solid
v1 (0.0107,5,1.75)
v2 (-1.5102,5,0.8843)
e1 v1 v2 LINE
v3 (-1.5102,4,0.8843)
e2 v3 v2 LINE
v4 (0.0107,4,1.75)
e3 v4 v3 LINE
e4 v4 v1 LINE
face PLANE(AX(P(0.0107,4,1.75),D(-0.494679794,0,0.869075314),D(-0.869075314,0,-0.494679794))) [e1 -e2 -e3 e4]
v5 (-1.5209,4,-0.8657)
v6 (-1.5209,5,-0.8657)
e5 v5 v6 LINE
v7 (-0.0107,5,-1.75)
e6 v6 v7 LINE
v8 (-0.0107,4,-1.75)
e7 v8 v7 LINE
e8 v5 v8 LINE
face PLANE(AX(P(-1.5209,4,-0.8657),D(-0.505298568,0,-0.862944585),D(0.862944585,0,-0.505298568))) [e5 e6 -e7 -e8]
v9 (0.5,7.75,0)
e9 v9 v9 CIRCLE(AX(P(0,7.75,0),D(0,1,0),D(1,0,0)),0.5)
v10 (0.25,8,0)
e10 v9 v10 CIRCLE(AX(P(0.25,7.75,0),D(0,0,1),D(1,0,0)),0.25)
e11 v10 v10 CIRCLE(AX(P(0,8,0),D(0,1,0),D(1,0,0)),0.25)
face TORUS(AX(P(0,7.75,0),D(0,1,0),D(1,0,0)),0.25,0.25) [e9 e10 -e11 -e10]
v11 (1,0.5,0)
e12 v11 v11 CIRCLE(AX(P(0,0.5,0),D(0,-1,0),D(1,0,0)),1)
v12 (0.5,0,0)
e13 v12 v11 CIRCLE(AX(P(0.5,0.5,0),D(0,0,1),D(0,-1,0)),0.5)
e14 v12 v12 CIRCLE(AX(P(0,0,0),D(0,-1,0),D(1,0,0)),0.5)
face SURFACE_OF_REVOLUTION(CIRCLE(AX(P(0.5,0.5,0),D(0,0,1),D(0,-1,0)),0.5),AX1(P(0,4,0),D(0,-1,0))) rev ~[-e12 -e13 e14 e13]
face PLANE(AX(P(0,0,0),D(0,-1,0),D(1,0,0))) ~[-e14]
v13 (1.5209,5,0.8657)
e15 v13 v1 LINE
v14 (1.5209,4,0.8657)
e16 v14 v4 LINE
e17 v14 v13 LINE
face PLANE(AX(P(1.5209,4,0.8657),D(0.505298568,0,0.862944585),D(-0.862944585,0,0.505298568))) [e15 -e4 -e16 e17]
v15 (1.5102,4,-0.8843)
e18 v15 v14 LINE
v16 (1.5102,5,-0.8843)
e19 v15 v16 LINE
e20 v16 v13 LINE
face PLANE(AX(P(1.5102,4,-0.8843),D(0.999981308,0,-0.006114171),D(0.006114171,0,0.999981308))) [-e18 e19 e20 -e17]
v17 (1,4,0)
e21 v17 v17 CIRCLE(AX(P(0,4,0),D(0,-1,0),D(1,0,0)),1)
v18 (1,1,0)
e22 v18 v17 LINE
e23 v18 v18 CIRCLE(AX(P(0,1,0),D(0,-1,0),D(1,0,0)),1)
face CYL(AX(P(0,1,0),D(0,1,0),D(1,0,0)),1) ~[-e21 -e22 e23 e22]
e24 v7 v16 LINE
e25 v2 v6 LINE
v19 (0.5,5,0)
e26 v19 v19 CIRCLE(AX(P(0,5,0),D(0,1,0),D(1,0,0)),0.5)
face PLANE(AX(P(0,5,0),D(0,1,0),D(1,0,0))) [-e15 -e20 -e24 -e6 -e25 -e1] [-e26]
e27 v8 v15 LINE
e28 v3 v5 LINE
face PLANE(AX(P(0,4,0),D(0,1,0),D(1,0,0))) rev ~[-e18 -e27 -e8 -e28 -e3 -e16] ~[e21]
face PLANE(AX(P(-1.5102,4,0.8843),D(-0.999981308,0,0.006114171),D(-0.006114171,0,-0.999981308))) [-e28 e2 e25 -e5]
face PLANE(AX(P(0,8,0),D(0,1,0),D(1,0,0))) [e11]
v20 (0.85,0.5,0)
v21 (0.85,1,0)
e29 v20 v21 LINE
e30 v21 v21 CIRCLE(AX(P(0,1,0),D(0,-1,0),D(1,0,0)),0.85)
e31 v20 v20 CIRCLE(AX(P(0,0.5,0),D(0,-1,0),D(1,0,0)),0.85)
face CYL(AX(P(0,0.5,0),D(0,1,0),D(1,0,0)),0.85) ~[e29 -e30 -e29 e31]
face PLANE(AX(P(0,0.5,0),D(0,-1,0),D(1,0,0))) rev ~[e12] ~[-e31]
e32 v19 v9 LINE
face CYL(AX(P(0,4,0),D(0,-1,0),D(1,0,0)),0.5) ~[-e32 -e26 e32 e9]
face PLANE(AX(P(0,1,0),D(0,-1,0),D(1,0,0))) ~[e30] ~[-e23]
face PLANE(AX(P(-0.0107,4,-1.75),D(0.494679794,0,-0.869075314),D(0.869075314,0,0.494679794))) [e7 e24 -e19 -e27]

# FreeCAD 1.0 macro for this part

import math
import FreeCAD as App
import Part
import Sketcher
Q = App.Units.Quantity


def edges_at(feature, points):
    """Names of the edges that pass closest to the given points."""
    edges = feature.Shape.Edges
    near = lambda p: min(range(len(edges)), key=lambda i: edges[i].distToShape(Part.Vertex(*p))[0])
    return sorted({f"Edge{near(p) + 1}" for p in points})


def add_polygon(sketch, points):
    """Adds a closed chain of lines whose ends are joined by coincident constraints."""
    first, n = sketch.GeometryCount, len(points)
    for a, b in zip(points, points[1:] + points[:1]):
        sketch.addGeometry(Part.LineSegment(App.Vector(*a, 0), App.Vector(*b, 0)), False)
    for i in range(n):
        sketch.addConstraint(Sketcher.Constraint("Coincident", first + i, 2, first + (i + 1) % n, 1))

doc = App.newDocument("Part")
body = doc.addObject("PartDesign::Body", "Body")

sketch1 = body.newObject("Sketcher::SketchObject", "Sketch")
sketch1.AttachmentSupport = (doc.getObject("XY_Plane"), [""])
sketch1.MapMode = "FlatFace"
sketch1.addGeometry(Part.LineSegment(App.Vector(0, 4, 0), App.Vector(0, 0, 0)), False)
sketch1.addGeometry(Part.LineSegment(App.Vector(0, 0, 0), App.Vector(0.5, 0, 0)), False)
sketch1.addGeometry(Part.ArcOfCircle(Part.Circle(App.Vector(0.5, 0.5, 0), App.Vector(0, 0, 1), 0.5), math.radians(-90), math.radians(0)), False)
sketch1.addGeometry(Part.LineSegment(App.Vector(1, 0.5, 0), App.Vector(0.85, 0.5, 0)), False)
sketch1.addGeometry(Part.LineSegment(App.Vector(0.85, 0.5, 0), App.Vector(0.85, 1, 0)), False)
sketch1.addGeometry(Part.LineSegment(App.Vector(0.85, 1, 0), App.Vector(1, 1, 0)), False)
sketch1.addGeometry(Part.LineSegment(App.Vector(1, 1, 0), App.Vector(1, 4, 0)), False)
sketch1.addGeometry(Part.LineSegment(App.Vector(1, 4, 0), App.Vector(0, 4, 0)), False)
sketch1.addConstraint(Sketcher.Constraint("Coincident", 0, 2, 1, 1))
sketch1.addConstraint(Sketcher.Constraint("Tangent", 1, 2, 2, 1))
sketch1.addConstraint(Sketcher.Constraint("Coincident", 2, 2, 3, 1))
sketch1.addConstraint(Sketcher.Constraint("Coincident", 3, 2, 4, 1))
sketch1.addConstraint(Sketcher.Constraint("Coincident", 4, 2, 5, 1))
sketch1.addConstraint(Sketcher.Constraint("Coincident", 5, 2, 6, 1))
sketch1.addConstraint(Sketcher.Constraint("Coincident", 6, 2, 7, 1))
sketch1.addConstraint(Sketcher.Constraint("Coincident", 7, 2, 0, 1))
sketch1.addConstraint(Sketcher.Constraint("Vertical", 0))
sketch1.addConstraint(Sketcher.Constraint("Horizontal", 1))
sketch1.addConstraint(Sketcher.Constraint("Horizontal", 3))
sketch1.addConstraint(Sketcher.Constraint("Vertical", 4))
sketch1.addConstraint(Sketcher.Constraint("Horizontal", 5))
sketch1.addConstraint(Sketcher.Constraint("Vertical", 6))
sketch1.addConstraint(Sketcher.Constraint("Horizontal", 7))
sketch1.addConstraint(Sketcher.Constraint("Coincident", 0, 2, -1, 1))
sketch1.addConstraint(Sketcher.Constraint("Vertical", 2, 2, 5, 2))
sketch1.addConstraint(Sketcher.Constraint("Equal", 1, 4))
sketch1.addConstraint(Sketcher.Constraint("Radius", 2, Q("0.5 mm")))
sketch1.addConstraint(Sketcher.Constraint("DistanceX", 7, 2, 7, 1, Q("1 mm")))
sketch1.addConstraint(Sketcher.Constraint("DistanceY", 0, 2, 0, 1, Q("4 mm")))
sketch1.addConstraint(Sketcher.Constraint("DistanceY", -1, 1, 4, 2, Q("1 mm")))
sketch1.addConstraint(Sketcher.Constraint("DistanceX", 3, 2, 3, 1, Q("0.15 mm")))
revolution = body.newObject("PartDesign::Revolution", "Revolution")
revolution.Profile = sketch1
revolution.ReferenceAxis = (sketch1, ["V_Axis"])
revolution.Angle = 360

sketch2 = body.newObject("Sketcher::SketchObject", "Sketch001")
sketch2.AttachmentSupport = (doc.getObject("XZ_Plane"), [""])
sketch2.MapMode = "FlatFace"
sketch2.AttachmentOffset = App.Placement(App.Vector(0, 0, -4), App.Rotation())
add_polygon(sketch2, [(-1.5, -0.9), (-1.5, 0.9), (0, 1.8), (1.5, 0.9), (1.5, -0.9), (0, -1.8)])
sketch2.addGeometry(Part.Circle(App.Vector(0, 0, 0), App.Vector(0, 0, 1), 0.5), False)
sketch2.addConstraint(Sketcher.Constraint("Coincident", 6, 3, -1, 1))
sketch2.addConstraint(Sketcher.Constraint("Symmetric", 0, 2, 3, 2, -1, 1))
sketch2.addConstraint(Sketcher.Constraint("Symmetric", 1, 2, 4, 2, -1, 1))
sketch2.addConstraint(Sketcher.Constraint("Symmetric", 2, 2, 5, 2, -1, 1))
sketch2.addConstraint(Sketcher.Constraint("Equal", 0, 1))
sketch2.addConstraint(Sketcher.Constraint("Equal", 1, 2))
sketch2.addConstraint(Sketcher.Constraint("Diameter", 6, Q("1 mm")))
sketch2.addConstraint(Sketcher.Constraint("DistanceY", 4, 2, 1, 2, Q("3.5 mm")))
sketch2.addConstraint(Sketcher.Constraint("Angle", 0, Q("89.6497 deg")))
sketch2.addConstraint(Sketcher.Constraint("Angle", 2, Q("-30.3512 deg")))
sketch2.addConstraint(Sketcher.Constraint("Distance", 0, Q("1.75 mm")))
pad1 = body.newObject("PartDesign::Pad", "Pad")
pad1.Profile = sketch2
pad1.Length = 1
pad1.Reversed = True

sketch3 = body.newObject("Sketcher::SketchObject", "Sketch002")
sketch3.AttachmentSupport = (doc.getObject("XZ_Plane"), [""])
sketch3.MapMode = "FlatFace"
sketch3.AttachmentOffset = App.Placement(App.Vector(0, 0, -4), App.Rotation())
sketch3.addGeometry(Part.Circle(App.Vector(0, 0, 0), App.Vector(0, 0, 1), 0.5), False)
sketch3.addConstraint(Sketcher.Constraint("Coincident", 0, 3, -1, 1))
sketch3.addConstraint(Sketcher.Constraint("Diameter", 0, Q("1 mm")))
pad2 = body.newObject("PartDesign::Pad", "Pad001")
pad2.Profile = sketch3
pad2.Length = 4
pad2.Reversed = True
doc.recompute()

fillet = body.newObject("PartDesign::Fillet", "Fillet")
fillet.Base = (pad2, edges_at(pad2, [(-0.5, 8, 0)]))
fillet.Radius = 0.25

doc.recompute()
